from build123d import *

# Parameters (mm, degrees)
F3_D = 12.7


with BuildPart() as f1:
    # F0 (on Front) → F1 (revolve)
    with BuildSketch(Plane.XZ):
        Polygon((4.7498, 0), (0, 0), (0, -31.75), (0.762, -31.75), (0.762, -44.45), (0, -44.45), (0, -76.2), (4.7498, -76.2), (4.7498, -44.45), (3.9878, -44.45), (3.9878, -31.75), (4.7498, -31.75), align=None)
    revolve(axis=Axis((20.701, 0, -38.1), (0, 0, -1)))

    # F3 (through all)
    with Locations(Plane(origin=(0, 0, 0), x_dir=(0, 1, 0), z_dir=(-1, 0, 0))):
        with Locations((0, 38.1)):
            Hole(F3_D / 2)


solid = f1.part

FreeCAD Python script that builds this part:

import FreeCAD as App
import Part
import Sketcher

V = App.Vector
Q = App.Units.Quantity


def add_polygon(sketch, points):
    """Adds a closed chain of lines whose ends are joined by coincident constraints."""
    first, n = sketch.GeometryCount, len(points)
    for a, b in zip(points, points[1:] + points[:1]):
        sketch.addGeometry(Part.LineSegment(App.Vector(*a, 0), App.Vector(*b, 0)), False)
    for i in range(n):
        sketch.addConstraint(Sketcher.Constraint("Coincident", first + i, 2, first + (i + 1) % n, 1))

doc = App.newDocument("Part")
body = doc.addObject("PartDesign::Body", "Body")

# Sketch on XZ plane
sketch1 = body.newObject("Sketcher::SketchObject", "Sketch")
sketch1.AttachmentSupport = (doc.getObject("XZ_Plane"), [""])
sketch1.MapMode = "FlatFace"
add_polygon(sketch1, [(4.7, 0), (0, 0), (0, -31.8), (0.8, -31.8), (0.8, -44.5), (0, -44.5), (0, -76.2), (4.7, -76.2), (4.7, -44.5), (4, -44.5), (4, -31.8), (4.7, -31.8)])  # lines 0-11
sketch1.addGeometry(Part.LineSegment(V(20.7, 0, 0), V(20.7, -76.2, 0)), True)  # axis
sketch1.addConstraint([
    Sketcher.Constraint("Horizontal", 0),
    Sketcher.Constraint("Vertical", 1),
    Sketcher.Constraint("Horizontal", 2),
    Sketcher.Constraint("Vertical", 3),
    Sketcher.Constraint("Horizontal", 4),
    Sketcher.Constraint("Vertical", 5),
    Sketcher.Constraint("Horizontal", 6),
    Sketcher.Constraint("Vertical", 7),
    Sketcher.Constraint("Horizontal", 8),
    Sketcher.Constraint("Vertical", 9),
    Sketcher.Constraint("Horizontal", 10),
    Sketcher.Constraint("Vertical", 11),
    Sketcher.Constraint("Vertical", 12),
    Sketcher.Constraint("Coincident", 0, 2, -1, 1),
    Sketcher.Constraint("PointOnObject", 4, 2, -2),
    Sketcher.Constraint("PointOnObject", 12, 1, -1),
    Sketcher.Constraint("Horizontal", 4, 2, 7, 2),
    Sketcher.Constraint("Horizontal", 2, 2, 9, 2),
    Sketcher.Constraint("Horizontal", 6, 2, 12, 2),
    Sketcher.Constraint("Vertical", 7, 2, 10, 2),
    Sketcher.Constraint("Equal", 4, 8),
    Sketcher.Constraint("Equal", 1, 5),
    Sketcher.Constraint("DistanceY", 12, 2, 12, 1, Q("3 in")),
    Sketcher.Constraint("DistanceY", 3, 2, 3, 1, Q("0.5 in")),
    Sketcher.Constraint("DistanceX", 2, 1, 2, 2, Q("0.03 in")),
    Sketcher.Constraint("DistanceX", 0, 2, 0, 1, Q("0.187 in")),
    Sketcher.Constraint("DistanceX", -1, 1, 12, 1, Q("0.815 in")),
])
revolution = body.newObject("PartDesign::Revolution", "Revolution")
revolution.Profile = sketch1
revolution.ReferenceAxis = (sketch1, ["Axis0"])
revolution.Angle = 360

# Sketch on YZ plane
sketch2 = body.newObject("Sketcher::SketchObject", "Sketch001")
sketch2.AttachmentSupport = (doc.getObject("YZ_Plane"), [""])
sketch2.MapMode = "FlatFace"
sketch2.addGeometry(Part.Circle(V(0, -38, 0), V(0, 0, 1), 6), False)
sketch2.addConstraint([
    Sketcher.Constraint("PointOnObject", 0, 3, -2),
    Sketcher.Constraint("Diameter", 0, Q("0.5 in")),
    Sketcher.Constraint("DistanceY", 0, 3, -1, 1, Q("1.5 in")),
])
doc.recompute()
hole = body.newObject("PartDesign::Hole", "Hole")
hole.Profile = sketch2
hole.ThreadType = "None"
hole.Diameter = Q("0.5 in")
hole.DepthType = "ThroughAll"
hole.Reversed = True

doc.recompute()
